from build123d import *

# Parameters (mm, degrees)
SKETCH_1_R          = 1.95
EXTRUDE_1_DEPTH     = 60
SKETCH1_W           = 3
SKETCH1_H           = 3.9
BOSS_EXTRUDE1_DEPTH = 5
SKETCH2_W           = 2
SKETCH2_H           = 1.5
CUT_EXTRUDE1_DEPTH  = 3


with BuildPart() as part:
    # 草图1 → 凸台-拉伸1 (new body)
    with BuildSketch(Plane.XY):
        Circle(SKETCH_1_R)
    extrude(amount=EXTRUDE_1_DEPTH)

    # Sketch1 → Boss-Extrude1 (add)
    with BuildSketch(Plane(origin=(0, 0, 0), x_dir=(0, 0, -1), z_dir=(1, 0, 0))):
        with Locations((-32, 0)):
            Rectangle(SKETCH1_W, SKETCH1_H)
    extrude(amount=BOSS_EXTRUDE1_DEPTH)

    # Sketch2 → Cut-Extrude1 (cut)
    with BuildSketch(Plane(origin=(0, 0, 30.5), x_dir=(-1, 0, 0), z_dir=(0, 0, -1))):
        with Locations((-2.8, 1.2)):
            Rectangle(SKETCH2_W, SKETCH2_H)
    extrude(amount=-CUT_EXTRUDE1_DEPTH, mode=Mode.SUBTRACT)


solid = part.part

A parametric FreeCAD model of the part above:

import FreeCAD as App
import Part
import Sketcher
from FreeCAD import Vector
Q = App.Units.Quantity

doc = App.newDocument("Part")
body = doc.addObject("PartDesign::Body", "Body")

sketch1 = body.newObject("Sketcher::SketchObject", "Sketch")
sketch1.AttachmentSupport = (doc.getObject("XY_Plane"), [""])
sketch1.MapMode = "FlatFace"
sketch1.addGeometry(Part.Circle(Vector(0, 0, 0), Vector(0, 0, 1), 1.9), False)
sketch1.addConstraint([
    Sketcher.Constraint("Coincident", 0, 3, -1, 1),
    Sketcher.Constraint("Diameter", 0, Q("3.9 mm")),
])
pad1 = body.newObject("PartDesign::Pad", "Pad")
pad1.Profile = sketch1
pad1.Length = 60

sketch2 = body.newObject("Sketcher::SketchObject", "Sketch001")
sketch2.AttachmentSupport = (doc.getObject("YZ_Plane"), [""])
sketch2.MapMode = "FlatFace"
sketch2.addGeometry([
    Part.LineSegment(Vector(1.9, 33.5, 0), Vector(-1.9, 33.5, 0)),
    Part.LineSegment(Vector(-1.9, 33.5, 0), Vector(-1.9, 30.5, 0)),
    Part.LineSegment(Vector(-1.9, 30.5, 0), Vector(1.9, 30.5, 0)),
    Part.LineSegment(Vector(1.9, 30.5, 0), Vector(1.9, 33.5, 0)),
], False)
sketch2.addConstraint([
    Sketcher.Constraint("Coincident", 0, 2, 1, 1),
    Sketcher.Constraint("Coincident", 1, 2, 2, 1),
    Sketcher.Constraint("Coincident", 2, 2, 3, 1),
    Sketcher.Constraint("Coincident", 3, 2, 0, 1),
    Sketcher.Constraint("Horizontal", 0),
    Sketcher.Constraint("Vertical", 1),
    Sketcher.Constraint("Horizontal", 2),
    Sketcher.Constraint("Vertical", 3),
    Sketcher.Constraint("DistanceY", 1, 2, 1, 1, Q("3 mm")),
    Sketcher.Constraint("DistanceX", 0, 2, 0, 1, Q("3.9 mm")),
    Sketcher.Constraint("DistanceY", -1, 1, 0, 2, Q("33.5 mm")),
    Sketcher.Constraint("DistanceX", 0, 2, -1, 1, Q("1.95 mm")),
])
pad2 = body.newObject("PartDesign::Pad", "Pad001")
pad2.Profile = sketch2
pad2.Length = 5

sketch3 = body.newObject("Sketcher::SketchObject", "Sketch002")
sketch3.AttachmentSupport = (doc.getObject("XY_Plane"), [""])
sketch3.MapMode = "FlatFace"
sketch3.AttachmentOffset = App.Placement(Vector(0, 0, 30.5), App.Rotation())
sketch3.addGeometry([
    Part.LineSegment(Vector(3.8, 1.9, 0), Vector(3.8, 0.5, 0)),
    Part.LineSegment(Vector(3.8, 0.5, 0), Vector(1.8, 0.5, 0)),
    Part.LineSegment(Vector(1.8, 0.5, 0), Vector(1.8, 1.9, 0)),
    Part.LineSegment(Vector(1.8, 1.9, 0), Vector(3.8, 1.9, 0)),
], False)
sketch3.addConstraint([
    Sketcher.Constraint("Coincident", 0, 2, 1, 1),
    Sketcher.Constraint("Coincident", 1, 2, 2, 1),
    Sketcher.Constraint("Coincident", 2, 2, 3, 1),
    Sketcher.Constraint("Coincident", 3, 2, 0, 1),
    Sketcher.Constraint("Vertical", 0),
    Sketcher.Constraint("Horizontal", 1),
    Sketcher.Constraint("Vertical", 2),
    Sketcher.Constraint("Horizontal", 3),
    Sketcher.Constraint("DistanceX", 1, 2, 1, 1, Q("2 mm")),
    Sketcher.Constraint("DistanceY", 0, 2, 0, 1, Q("1.5 mm")),
    Sketcher.Constraint("DistanceX", -1, 1, 0, 2, Q("3.8 mm")),
    Sketcher.Constraint("DistanceY", -1, 1, 0, 2, Q("0.45 mm")),
])
pocket1 = body.newObject("PartDesign::Pocket", "Pocket")
pocket1.Profile = sketch3
pocket1.Length = 3
pocket1.Reversed = True

doc.recompute()
